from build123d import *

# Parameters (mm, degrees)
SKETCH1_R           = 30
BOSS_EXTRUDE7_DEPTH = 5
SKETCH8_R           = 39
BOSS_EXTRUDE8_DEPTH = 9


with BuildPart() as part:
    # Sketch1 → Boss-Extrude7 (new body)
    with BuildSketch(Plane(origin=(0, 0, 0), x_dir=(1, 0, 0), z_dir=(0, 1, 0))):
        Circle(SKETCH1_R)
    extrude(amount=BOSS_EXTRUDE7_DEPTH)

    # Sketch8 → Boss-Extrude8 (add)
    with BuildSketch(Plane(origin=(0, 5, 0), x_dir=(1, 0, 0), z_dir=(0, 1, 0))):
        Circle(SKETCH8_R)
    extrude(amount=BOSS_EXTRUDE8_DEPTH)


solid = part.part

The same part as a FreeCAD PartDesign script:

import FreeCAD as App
import Part
import Sketcher
from FreeCAD import Vector

doc = App.newDocument("Part")
body = doc.addObject("PartDesign::Body", "Body")

# Sketch on XZ plane
sketch1 = body.newObject("Sketcher::SketchObject", "Sketch")
sketch1.AttachmentSupport = (doc.getObject("XZ_Plane"), [""])
sketch1.MapMode = "FlatFace"
sketch1.addGeometry(Part.Circle(Vector(0, 0, 0), Vector(0, 0, 1), 30), False)
sketch1.addConstraint([
    Sketcher.Constraint("Coincident", 0, 3, -1, 1),
    Sketcher.Constraint("Diameter", 0, 60.0),
])
pad1 = body.newObject("PartDesign::Pad", "Pad")
pad1.Profile = sketch1
pad1.Length = 5
pad1.Reversed = True

# Sketch on XZ plane
sketch2 = body.newObject("Sketcher::SketchObject", "Sketch001")
sketch2.AttachmentSupport = (doc.getObject("XZ_Plane"), [""])
sketch2.MapMode = "FlatFace"
sketch2.AttachmentOffset = App.Placement(Vector(0, 0, -5), App.Rotation())
sketch2.addGeometry(Part.Circle(Vector(0, 0, 0), Vector(0, 0, 1), 39), False)
sketch2.addConstraint([
    Sketcher.Constraint("Coincident", 0, 3, -1, 1),
    Sketcher.Constraint("Diameter", 0, 78.0),
])
pad2 = body.newObject("PartDesign::Pad", "Pad001")
pad2.Profile = sketch2
pad2.Length = 9
pad2.Reversed = True

doc.recompute()
